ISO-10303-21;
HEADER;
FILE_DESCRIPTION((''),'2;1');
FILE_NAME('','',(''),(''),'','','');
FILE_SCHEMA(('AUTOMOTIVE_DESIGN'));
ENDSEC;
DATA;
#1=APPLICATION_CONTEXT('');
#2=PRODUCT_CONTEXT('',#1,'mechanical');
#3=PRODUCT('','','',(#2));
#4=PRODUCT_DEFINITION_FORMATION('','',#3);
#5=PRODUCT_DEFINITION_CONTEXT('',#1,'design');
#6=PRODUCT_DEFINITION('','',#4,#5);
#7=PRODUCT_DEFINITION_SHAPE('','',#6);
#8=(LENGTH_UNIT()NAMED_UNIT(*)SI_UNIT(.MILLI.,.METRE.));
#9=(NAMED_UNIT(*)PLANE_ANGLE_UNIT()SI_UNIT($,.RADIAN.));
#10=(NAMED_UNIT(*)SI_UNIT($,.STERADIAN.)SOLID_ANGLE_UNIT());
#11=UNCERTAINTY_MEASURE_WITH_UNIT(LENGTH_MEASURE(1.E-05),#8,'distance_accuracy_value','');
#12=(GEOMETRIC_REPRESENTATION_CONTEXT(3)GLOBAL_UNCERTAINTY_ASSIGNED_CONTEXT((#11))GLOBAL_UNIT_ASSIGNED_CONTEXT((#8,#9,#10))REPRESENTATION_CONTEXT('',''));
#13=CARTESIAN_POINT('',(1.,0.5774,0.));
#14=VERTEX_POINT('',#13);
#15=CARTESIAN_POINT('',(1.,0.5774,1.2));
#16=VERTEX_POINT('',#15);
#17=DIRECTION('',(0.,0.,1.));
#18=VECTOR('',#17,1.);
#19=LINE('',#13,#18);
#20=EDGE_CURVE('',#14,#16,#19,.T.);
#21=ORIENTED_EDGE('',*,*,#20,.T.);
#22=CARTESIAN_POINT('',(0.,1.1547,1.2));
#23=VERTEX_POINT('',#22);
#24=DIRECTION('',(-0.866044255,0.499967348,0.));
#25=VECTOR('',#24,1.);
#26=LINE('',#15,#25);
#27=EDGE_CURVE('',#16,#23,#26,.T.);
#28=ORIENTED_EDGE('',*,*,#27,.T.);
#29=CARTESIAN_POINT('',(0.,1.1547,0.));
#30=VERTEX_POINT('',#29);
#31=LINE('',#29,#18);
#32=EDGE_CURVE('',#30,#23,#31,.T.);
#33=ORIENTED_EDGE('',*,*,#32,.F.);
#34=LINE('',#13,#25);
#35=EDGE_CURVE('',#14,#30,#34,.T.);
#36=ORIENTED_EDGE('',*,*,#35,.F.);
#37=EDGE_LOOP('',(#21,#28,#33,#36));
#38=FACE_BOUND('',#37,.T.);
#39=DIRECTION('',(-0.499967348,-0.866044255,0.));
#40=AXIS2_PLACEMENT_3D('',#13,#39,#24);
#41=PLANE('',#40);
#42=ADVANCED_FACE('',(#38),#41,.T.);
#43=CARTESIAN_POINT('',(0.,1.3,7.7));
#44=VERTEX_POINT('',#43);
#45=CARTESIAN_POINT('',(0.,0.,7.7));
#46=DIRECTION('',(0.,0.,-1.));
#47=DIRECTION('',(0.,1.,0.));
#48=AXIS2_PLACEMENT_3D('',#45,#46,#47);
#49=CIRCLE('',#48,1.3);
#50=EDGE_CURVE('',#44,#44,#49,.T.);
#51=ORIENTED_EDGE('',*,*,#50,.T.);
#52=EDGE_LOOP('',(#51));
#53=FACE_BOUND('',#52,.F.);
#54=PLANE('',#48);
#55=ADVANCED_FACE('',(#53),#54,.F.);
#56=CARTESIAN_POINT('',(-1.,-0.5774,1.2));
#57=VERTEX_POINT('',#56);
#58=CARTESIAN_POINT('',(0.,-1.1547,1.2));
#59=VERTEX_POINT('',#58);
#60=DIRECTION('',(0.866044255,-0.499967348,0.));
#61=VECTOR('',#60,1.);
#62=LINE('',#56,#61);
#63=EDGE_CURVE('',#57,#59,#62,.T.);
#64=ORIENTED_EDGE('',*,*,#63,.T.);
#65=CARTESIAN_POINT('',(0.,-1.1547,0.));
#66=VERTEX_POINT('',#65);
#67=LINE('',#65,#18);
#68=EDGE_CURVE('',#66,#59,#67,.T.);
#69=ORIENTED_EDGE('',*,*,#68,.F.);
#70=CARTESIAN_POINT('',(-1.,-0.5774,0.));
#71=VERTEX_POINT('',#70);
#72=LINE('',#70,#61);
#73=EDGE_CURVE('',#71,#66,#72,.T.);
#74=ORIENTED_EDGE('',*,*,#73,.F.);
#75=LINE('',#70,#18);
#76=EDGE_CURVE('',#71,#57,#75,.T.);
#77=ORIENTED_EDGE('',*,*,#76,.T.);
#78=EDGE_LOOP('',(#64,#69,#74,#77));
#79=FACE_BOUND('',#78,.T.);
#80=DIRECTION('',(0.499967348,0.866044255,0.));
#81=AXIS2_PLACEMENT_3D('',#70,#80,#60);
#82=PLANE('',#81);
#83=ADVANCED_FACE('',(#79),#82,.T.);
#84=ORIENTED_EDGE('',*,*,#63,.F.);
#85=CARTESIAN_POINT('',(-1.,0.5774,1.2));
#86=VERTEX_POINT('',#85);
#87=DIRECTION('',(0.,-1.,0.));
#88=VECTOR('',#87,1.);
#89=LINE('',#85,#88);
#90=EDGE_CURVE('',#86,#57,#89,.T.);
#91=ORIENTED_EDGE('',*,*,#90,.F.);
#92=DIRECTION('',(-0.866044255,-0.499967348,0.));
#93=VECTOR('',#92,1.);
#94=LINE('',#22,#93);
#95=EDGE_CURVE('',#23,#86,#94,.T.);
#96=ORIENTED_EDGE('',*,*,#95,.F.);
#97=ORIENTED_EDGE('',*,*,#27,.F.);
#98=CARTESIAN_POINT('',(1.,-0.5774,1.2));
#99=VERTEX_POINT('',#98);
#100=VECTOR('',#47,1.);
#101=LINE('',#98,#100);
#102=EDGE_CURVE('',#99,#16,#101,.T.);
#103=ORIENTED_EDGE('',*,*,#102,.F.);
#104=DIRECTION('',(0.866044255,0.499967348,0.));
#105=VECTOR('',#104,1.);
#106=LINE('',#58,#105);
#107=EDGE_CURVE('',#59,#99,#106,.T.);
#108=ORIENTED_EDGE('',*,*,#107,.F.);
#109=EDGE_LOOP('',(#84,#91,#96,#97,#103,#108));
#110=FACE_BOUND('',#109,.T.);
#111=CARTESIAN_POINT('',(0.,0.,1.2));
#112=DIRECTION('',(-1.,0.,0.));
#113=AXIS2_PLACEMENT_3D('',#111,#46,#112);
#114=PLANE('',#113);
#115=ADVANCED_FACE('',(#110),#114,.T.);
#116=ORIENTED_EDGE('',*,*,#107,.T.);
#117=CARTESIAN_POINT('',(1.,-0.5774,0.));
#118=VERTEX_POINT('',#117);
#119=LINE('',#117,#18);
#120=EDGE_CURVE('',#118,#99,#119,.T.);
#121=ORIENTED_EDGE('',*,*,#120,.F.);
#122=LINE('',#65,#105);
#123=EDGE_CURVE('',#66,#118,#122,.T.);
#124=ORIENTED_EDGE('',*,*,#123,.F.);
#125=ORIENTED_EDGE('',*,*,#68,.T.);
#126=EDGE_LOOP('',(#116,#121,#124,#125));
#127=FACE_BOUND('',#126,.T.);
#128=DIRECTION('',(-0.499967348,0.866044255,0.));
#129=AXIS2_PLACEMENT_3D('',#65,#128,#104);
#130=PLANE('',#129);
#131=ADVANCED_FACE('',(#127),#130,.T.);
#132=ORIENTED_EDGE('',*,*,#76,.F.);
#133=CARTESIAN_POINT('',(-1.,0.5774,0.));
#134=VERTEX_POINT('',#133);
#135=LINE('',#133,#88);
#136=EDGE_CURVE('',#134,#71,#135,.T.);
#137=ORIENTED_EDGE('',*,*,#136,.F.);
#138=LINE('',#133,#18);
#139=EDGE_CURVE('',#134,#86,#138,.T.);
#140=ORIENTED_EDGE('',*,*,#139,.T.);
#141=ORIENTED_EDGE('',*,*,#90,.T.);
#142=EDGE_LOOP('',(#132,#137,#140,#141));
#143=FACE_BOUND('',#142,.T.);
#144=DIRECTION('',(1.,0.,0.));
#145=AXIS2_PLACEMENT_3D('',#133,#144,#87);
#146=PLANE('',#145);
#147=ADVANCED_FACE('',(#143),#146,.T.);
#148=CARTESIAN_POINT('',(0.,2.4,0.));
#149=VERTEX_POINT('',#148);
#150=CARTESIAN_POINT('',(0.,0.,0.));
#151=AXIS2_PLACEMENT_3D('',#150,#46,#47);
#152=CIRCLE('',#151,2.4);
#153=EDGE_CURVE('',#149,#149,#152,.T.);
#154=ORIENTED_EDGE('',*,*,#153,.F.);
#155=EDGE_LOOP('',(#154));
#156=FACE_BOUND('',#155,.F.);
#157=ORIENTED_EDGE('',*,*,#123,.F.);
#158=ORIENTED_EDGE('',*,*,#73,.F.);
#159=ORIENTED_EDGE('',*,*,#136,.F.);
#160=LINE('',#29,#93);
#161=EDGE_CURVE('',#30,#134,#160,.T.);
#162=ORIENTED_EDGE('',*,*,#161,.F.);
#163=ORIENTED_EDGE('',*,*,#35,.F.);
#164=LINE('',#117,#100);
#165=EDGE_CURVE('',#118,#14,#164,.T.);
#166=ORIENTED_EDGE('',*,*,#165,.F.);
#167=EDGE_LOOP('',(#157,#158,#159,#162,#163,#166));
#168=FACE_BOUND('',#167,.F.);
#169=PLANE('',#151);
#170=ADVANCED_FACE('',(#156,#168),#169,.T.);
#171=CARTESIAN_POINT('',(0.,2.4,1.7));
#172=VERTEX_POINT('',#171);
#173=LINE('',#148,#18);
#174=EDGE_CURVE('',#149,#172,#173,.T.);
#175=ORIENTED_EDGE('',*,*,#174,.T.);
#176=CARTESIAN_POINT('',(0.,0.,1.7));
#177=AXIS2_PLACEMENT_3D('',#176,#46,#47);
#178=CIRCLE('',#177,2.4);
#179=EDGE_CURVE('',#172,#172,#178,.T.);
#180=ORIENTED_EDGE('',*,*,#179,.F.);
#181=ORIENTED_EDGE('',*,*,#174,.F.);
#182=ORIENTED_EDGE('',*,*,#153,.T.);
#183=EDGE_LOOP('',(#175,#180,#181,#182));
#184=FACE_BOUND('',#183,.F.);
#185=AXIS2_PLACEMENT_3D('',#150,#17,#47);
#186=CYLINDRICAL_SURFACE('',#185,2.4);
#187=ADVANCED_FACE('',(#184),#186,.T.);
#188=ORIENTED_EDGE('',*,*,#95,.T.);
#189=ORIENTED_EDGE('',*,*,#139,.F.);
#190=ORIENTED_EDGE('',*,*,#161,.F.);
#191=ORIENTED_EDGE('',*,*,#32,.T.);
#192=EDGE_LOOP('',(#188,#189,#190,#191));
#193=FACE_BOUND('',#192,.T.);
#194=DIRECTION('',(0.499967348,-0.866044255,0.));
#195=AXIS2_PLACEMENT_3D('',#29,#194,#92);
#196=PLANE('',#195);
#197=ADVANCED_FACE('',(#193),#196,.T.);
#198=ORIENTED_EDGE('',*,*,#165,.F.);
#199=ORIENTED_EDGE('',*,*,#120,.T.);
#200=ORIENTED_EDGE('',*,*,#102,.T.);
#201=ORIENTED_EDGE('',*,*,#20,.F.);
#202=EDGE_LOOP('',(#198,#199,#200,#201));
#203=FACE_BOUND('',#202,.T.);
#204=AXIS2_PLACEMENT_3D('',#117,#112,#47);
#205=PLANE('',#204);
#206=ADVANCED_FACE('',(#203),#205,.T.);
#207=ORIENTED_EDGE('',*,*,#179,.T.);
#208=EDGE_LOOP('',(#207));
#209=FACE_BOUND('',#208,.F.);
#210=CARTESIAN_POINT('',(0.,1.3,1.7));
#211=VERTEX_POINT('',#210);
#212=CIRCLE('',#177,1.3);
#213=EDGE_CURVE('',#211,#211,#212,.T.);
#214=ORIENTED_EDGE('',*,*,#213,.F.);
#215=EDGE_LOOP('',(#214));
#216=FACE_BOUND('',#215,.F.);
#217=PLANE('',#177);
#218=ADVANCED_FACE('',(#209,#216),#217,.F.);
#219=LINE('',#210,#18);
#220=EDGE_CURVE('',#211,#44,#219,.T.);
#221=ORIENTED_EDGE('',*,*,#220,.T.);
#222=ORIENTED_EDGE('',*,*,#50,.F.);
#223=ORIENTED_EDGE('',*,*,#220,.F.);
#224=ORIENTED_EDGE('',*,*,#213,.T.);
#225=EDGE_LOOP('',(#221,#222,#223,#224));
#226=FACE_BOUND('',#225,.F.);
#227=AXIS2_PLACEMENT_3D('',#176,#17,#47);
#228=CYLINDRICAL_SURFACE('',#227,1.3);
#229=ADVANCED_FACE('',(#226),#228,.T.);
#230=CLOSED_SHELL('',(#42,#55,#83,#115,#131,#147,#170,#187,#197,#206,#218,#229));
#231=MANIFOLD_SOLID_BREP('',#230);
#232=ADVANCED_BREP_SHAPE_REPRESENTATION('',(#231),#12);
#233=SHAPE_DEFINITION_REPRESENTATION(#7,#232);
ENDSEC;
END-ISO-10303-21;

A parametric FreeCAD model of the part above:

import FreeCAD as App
import Part
import Sketcher

V = App.Vector


def add_polygon(sketch, points):
    """Adds a closed chain of lines whose ends are joined by coincident constraints."""
    first, n = sketch.GeometryCount, len(points)
    for a, b in zip(points, points[1:] + points[:1]):
        sketch.addGeometry(Part.LineSegment(App.Vector(*a, 0), App.Vector(*b, 0)), False)
    for i in range(n):
        sketch.addConstraint(Sketcher.Constraint("Coincident", first + i, 2, first + (i + 1) % n, 1))

doc = App.newDocument("Part")
params = doc.addObject("Spreadsheet::Sheet", "Params")
for row, (alias, value) in enumerate([
    ("sketch1_height", "6 mm"),
    ("sketch1_height2", "1.7 mm"),
    ("sketch1_width", "1.3 mm"),
    ("sketch1_width2", "2.4 mm"),
    ("revolution_angle", "360 deg"),
    ("pocket1_length", "1.2 mm"),
], start=1):
    params.set(f"A{row}", alias)
    params.set(f"B{row}", "=" + value)
    params.setAlias(f"B{row}", alias)

body = doc.addObject("PartDesign::Body", "Body")

sketch1 = body.newObject("Sketcher::SketchObject", "Sketch")
sketch1.AttachmentSupport = (doc.getObject("YZ_Plane"), [""])
sketch1.MapMode = "FlatFace"
add_polygon(sketch1, [(1.3, 7.7), (0, 7.7), (0, 0), (2.4, 0), (2.4, 1.7), (1.3, 1.7)])
sketch1.addConstraint([
    Sketcher.Constraint("Horizontal", 0),
    Sketcher.Constraint("Vertical", 1),
    Sketcher.Constraint("Horizontal", 2),
    Sketcher.Constraint("Vertical", 3),
    Sketcher.Constraint("Horizontal", 4),
    Sketcher.Constraint("Vertical", 5),
    Sketcher.Constraint("Coincident", 1, 2, -1, 1),
    Sketcher.Constraint("DistanceY", 5, 1, 5, 2, 6.0),
    Sketcher.Constraint("DistanceY", 3, 1, 3, 2, 1.7),
    Sketcher.Constraint("DistanceX", 0, 2, 0, 1, 1.3),
    Sketcher.Constraint("DistanceX", 2, 1, 2, 2, 2.4),
])
sketch1.setExpression("Constraints[13]", "Params.sketch1_height")
sketch1.setExpression("Constraints[14]", "Params.sketch1_height2")
sketch1.setExpression("Constraints[15]", "Params.sketch1_width")
sketch1.setExpression("Constraints[16]", "Params.sketch1_width2")
revolution = body.newObject("PartDesign::Revolution", "Revolution")
revolution.Profile = sketch1
revolution.ReferenceAxis = (sketch1, ["V_Axis"])
revolution.setExpression("Angle", "Params.revolution_angle")

sketch2 = body.newObject("Sketcher::SketchObject", "Sketch001")
sketch2.AttachmentSupport = (doc.getObject("XY_Plane"), [""])
sketch2.MapMode = "FlatFace"
add_polygon(sketch2, [(-1, 0.6), (0, 1.2), (1, 0.6), (1, -0.6), (0, -1.2), (-1, -0.6)])
sketch2.addConstraint([
    Sketcher.Constraint("Vertical", 2),
    Sketcher.Constraint("Vertical", 5),
    Sketcher.Constraint("Symmetric", 0, 2, 3, 2, -1, 1),
    Sketcher.Constraint("Symmetric", 1, 2, 4, 2, -1, 1),
    Sketcher.Constraint("PointOnObject", 0, 2, -2),
    Sketcher.Constraint("Parallel", 0, 3),
    Sketcher.Constraint("Horizontal", 2, 2, 4, 2),
    Sketcher.Constraint("DistanceX", 4, 2, 2, 2, 2.0),
    Sketcher.Constraint("DistanceY", 2, 2, 2, 1, 1.1548),
    Sketcher.Constraint("DistanceY", 2, 2, 0, 2, 1.732),
])
pocket1 = body.newObject("PartDesign::Pocket", "Pocket")
pocket1.Profile = sketch2
pocket1.setExpression("Length", "Params.pocket1_length")
pocket1.Reversed = True

doc.recompute()
